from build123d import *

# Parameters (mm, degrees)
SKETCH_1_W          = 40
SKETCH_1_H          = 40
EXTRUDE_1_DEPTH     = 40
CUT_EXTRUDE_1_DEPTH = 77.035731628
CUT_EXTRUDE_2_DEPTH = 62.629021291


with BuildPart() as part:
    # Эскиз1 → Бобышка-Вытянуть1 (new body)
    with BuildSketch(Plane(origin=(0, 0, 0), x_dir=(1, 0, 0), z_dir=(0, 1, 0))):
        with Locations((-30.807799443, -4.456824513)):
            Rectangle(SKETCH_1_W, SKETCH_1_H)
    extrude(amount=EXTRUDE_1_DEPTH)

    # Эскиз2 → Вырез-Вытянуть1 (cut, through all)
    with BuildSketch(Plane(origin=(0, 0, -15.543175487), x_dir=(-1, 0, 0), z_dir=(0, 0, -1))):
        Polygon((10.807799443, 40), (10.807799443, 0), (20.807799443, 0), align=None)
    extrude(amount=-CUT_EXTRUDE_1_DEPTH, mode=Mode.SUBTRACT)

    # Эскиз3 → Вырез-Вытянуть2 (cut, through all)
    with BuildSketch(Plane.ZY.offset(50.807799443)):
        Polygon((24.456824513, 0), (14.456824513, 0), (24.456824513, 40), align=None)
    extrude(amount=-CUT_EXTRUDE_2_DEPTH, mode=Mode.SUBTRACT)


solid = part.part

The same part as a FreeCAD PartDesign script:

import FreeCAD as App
import Part
import Sketcher


def add_polygon(sketch, points):
    """Adds a closed chain of lines whose ends are joined by coincident constraints."""
    first, n = sketch.GeometryCount, len(points)
    for a, b in zip(points, points[1:] + points[:1]):
        sketch.addGeometry(Part.LineSegment(App.Vector(*a, 0), App.Vector(*b, 0)), False)
    for i in range(n):
        sketch.addConstraint(Sketcher.Constraint("Coincident", first + i, 2, first + (i + 1) % n, 1))

doc = App.newDocument("Part")
body = doc.addObject("PartDesign::Body", "Body")

sketch1 = body.newObject("Sketcher::SketchObject", "Sketch")
sketch1.AttachmentSupport = (doc.getObject("XZ_Plane"), [""])
sketch1.MapMode = "FlatFace"
add_polygon(sketch1, [(-51, -16), (-51, 24), (-11, 24), (-11, -16)])
sketch1.addConstraint([
    Sketcher.Constraint("Vertical", 0),
    Sketcher.Constraint("Horizontal", 1),
    Sketcher.Constraint("Vertical", 2),
    Sketcher.Constraint("Horizontal", 3),
    Sketcher.Constraint("Equal", 3, 0),
    Sketcher.Constraint("DistanceX", 1, 1, 1, 2, 40.0),
    Sketcher.Constraint("DistanceX", 0, 2, -1, 1, 50.807799),
    Sketcher.Constraint("DistanceY", -1, 1, 0, 2, 24.456825),
])
pad1 = body.newObject("PartDesign::Pad", "Pad")
pad1.Profile = sketch1
pad1.Length = 40
pad1.Reversed = True

sketch2 = body.newObject("Sketcher::SketchObject", "Sketch001")
sketch2.AttachmentSupport = (doc.getObject("XY_Plane"), [""])
sketch2.MapMode = "FlatFace"
sketch2.AttachmentOffset = App.Placement(App.Vector(0, 0, -15.543175), App.Rotation())
add_polygon(sketch2, [(-11, 40), (-11, 0), (-21, 0)])
sketch2.addConstraint([
    Sketcher.Constraint("Vertical", 0),
    Sketcher.Constraint("Horizontal", 1),
    Sketcher.Constraint("PointOnObject", 0, 2, -1),
    Sketcher.Constraint("DistanceX", 1, 2, 1, 1, 10.0),
    Sketcher.Constraint("DistanceY", 0, 2, 0, 1, 40.0),
    Sketcher.Constraint("DistanceX", 0, 2, -1, 1, 10.807799),
])
pocket1 = body.newObject("PartDesign::Pocket", "Pocket")
pocket1.Profile = sketch2
pocket1.Type = "ThroughAll"
pocket1.Reversed = True

sketch3 = body.newObject("Sketcher::SketchObject", "Sketch002")
sketch3.AttachmentSupport = (doc.getObject("YZ_Plane"), [""])
sketch3.MapMode = "FlatFace"
sketch3.AttachmentOffset = App.Placement(App.Vector(0, 0, -50.807799), App.Rotation())
add_polygon(sketch3, [(0, 14), (0, 24), (40, 24)])
sketch3.addConstraint([
    Sketcher.Constraint("Vertical", 0),
    Sketcher.Constraint("Horizontal", 1),
    Sketcher.Constraint("PointOnObject", 0, 2, -2),
    Sketcher.Constraint("DistanceX", 1, 1, 1, 2, 40.0),
    Sketcher.Constraint("DistanceY", 0, 1, 0, 2, 10.0),
    Sketcher.Constraint("DistanceY", -1, 1, 0, 2, 24.456825),
])
pocket2 = body.newObject("PartDesign::Pocket", "Pocket001")
pocket2.Profile = sketch3
pocket2.Type = "ThroughAll"
pocket2.Reversed = True

doc.recompute()
